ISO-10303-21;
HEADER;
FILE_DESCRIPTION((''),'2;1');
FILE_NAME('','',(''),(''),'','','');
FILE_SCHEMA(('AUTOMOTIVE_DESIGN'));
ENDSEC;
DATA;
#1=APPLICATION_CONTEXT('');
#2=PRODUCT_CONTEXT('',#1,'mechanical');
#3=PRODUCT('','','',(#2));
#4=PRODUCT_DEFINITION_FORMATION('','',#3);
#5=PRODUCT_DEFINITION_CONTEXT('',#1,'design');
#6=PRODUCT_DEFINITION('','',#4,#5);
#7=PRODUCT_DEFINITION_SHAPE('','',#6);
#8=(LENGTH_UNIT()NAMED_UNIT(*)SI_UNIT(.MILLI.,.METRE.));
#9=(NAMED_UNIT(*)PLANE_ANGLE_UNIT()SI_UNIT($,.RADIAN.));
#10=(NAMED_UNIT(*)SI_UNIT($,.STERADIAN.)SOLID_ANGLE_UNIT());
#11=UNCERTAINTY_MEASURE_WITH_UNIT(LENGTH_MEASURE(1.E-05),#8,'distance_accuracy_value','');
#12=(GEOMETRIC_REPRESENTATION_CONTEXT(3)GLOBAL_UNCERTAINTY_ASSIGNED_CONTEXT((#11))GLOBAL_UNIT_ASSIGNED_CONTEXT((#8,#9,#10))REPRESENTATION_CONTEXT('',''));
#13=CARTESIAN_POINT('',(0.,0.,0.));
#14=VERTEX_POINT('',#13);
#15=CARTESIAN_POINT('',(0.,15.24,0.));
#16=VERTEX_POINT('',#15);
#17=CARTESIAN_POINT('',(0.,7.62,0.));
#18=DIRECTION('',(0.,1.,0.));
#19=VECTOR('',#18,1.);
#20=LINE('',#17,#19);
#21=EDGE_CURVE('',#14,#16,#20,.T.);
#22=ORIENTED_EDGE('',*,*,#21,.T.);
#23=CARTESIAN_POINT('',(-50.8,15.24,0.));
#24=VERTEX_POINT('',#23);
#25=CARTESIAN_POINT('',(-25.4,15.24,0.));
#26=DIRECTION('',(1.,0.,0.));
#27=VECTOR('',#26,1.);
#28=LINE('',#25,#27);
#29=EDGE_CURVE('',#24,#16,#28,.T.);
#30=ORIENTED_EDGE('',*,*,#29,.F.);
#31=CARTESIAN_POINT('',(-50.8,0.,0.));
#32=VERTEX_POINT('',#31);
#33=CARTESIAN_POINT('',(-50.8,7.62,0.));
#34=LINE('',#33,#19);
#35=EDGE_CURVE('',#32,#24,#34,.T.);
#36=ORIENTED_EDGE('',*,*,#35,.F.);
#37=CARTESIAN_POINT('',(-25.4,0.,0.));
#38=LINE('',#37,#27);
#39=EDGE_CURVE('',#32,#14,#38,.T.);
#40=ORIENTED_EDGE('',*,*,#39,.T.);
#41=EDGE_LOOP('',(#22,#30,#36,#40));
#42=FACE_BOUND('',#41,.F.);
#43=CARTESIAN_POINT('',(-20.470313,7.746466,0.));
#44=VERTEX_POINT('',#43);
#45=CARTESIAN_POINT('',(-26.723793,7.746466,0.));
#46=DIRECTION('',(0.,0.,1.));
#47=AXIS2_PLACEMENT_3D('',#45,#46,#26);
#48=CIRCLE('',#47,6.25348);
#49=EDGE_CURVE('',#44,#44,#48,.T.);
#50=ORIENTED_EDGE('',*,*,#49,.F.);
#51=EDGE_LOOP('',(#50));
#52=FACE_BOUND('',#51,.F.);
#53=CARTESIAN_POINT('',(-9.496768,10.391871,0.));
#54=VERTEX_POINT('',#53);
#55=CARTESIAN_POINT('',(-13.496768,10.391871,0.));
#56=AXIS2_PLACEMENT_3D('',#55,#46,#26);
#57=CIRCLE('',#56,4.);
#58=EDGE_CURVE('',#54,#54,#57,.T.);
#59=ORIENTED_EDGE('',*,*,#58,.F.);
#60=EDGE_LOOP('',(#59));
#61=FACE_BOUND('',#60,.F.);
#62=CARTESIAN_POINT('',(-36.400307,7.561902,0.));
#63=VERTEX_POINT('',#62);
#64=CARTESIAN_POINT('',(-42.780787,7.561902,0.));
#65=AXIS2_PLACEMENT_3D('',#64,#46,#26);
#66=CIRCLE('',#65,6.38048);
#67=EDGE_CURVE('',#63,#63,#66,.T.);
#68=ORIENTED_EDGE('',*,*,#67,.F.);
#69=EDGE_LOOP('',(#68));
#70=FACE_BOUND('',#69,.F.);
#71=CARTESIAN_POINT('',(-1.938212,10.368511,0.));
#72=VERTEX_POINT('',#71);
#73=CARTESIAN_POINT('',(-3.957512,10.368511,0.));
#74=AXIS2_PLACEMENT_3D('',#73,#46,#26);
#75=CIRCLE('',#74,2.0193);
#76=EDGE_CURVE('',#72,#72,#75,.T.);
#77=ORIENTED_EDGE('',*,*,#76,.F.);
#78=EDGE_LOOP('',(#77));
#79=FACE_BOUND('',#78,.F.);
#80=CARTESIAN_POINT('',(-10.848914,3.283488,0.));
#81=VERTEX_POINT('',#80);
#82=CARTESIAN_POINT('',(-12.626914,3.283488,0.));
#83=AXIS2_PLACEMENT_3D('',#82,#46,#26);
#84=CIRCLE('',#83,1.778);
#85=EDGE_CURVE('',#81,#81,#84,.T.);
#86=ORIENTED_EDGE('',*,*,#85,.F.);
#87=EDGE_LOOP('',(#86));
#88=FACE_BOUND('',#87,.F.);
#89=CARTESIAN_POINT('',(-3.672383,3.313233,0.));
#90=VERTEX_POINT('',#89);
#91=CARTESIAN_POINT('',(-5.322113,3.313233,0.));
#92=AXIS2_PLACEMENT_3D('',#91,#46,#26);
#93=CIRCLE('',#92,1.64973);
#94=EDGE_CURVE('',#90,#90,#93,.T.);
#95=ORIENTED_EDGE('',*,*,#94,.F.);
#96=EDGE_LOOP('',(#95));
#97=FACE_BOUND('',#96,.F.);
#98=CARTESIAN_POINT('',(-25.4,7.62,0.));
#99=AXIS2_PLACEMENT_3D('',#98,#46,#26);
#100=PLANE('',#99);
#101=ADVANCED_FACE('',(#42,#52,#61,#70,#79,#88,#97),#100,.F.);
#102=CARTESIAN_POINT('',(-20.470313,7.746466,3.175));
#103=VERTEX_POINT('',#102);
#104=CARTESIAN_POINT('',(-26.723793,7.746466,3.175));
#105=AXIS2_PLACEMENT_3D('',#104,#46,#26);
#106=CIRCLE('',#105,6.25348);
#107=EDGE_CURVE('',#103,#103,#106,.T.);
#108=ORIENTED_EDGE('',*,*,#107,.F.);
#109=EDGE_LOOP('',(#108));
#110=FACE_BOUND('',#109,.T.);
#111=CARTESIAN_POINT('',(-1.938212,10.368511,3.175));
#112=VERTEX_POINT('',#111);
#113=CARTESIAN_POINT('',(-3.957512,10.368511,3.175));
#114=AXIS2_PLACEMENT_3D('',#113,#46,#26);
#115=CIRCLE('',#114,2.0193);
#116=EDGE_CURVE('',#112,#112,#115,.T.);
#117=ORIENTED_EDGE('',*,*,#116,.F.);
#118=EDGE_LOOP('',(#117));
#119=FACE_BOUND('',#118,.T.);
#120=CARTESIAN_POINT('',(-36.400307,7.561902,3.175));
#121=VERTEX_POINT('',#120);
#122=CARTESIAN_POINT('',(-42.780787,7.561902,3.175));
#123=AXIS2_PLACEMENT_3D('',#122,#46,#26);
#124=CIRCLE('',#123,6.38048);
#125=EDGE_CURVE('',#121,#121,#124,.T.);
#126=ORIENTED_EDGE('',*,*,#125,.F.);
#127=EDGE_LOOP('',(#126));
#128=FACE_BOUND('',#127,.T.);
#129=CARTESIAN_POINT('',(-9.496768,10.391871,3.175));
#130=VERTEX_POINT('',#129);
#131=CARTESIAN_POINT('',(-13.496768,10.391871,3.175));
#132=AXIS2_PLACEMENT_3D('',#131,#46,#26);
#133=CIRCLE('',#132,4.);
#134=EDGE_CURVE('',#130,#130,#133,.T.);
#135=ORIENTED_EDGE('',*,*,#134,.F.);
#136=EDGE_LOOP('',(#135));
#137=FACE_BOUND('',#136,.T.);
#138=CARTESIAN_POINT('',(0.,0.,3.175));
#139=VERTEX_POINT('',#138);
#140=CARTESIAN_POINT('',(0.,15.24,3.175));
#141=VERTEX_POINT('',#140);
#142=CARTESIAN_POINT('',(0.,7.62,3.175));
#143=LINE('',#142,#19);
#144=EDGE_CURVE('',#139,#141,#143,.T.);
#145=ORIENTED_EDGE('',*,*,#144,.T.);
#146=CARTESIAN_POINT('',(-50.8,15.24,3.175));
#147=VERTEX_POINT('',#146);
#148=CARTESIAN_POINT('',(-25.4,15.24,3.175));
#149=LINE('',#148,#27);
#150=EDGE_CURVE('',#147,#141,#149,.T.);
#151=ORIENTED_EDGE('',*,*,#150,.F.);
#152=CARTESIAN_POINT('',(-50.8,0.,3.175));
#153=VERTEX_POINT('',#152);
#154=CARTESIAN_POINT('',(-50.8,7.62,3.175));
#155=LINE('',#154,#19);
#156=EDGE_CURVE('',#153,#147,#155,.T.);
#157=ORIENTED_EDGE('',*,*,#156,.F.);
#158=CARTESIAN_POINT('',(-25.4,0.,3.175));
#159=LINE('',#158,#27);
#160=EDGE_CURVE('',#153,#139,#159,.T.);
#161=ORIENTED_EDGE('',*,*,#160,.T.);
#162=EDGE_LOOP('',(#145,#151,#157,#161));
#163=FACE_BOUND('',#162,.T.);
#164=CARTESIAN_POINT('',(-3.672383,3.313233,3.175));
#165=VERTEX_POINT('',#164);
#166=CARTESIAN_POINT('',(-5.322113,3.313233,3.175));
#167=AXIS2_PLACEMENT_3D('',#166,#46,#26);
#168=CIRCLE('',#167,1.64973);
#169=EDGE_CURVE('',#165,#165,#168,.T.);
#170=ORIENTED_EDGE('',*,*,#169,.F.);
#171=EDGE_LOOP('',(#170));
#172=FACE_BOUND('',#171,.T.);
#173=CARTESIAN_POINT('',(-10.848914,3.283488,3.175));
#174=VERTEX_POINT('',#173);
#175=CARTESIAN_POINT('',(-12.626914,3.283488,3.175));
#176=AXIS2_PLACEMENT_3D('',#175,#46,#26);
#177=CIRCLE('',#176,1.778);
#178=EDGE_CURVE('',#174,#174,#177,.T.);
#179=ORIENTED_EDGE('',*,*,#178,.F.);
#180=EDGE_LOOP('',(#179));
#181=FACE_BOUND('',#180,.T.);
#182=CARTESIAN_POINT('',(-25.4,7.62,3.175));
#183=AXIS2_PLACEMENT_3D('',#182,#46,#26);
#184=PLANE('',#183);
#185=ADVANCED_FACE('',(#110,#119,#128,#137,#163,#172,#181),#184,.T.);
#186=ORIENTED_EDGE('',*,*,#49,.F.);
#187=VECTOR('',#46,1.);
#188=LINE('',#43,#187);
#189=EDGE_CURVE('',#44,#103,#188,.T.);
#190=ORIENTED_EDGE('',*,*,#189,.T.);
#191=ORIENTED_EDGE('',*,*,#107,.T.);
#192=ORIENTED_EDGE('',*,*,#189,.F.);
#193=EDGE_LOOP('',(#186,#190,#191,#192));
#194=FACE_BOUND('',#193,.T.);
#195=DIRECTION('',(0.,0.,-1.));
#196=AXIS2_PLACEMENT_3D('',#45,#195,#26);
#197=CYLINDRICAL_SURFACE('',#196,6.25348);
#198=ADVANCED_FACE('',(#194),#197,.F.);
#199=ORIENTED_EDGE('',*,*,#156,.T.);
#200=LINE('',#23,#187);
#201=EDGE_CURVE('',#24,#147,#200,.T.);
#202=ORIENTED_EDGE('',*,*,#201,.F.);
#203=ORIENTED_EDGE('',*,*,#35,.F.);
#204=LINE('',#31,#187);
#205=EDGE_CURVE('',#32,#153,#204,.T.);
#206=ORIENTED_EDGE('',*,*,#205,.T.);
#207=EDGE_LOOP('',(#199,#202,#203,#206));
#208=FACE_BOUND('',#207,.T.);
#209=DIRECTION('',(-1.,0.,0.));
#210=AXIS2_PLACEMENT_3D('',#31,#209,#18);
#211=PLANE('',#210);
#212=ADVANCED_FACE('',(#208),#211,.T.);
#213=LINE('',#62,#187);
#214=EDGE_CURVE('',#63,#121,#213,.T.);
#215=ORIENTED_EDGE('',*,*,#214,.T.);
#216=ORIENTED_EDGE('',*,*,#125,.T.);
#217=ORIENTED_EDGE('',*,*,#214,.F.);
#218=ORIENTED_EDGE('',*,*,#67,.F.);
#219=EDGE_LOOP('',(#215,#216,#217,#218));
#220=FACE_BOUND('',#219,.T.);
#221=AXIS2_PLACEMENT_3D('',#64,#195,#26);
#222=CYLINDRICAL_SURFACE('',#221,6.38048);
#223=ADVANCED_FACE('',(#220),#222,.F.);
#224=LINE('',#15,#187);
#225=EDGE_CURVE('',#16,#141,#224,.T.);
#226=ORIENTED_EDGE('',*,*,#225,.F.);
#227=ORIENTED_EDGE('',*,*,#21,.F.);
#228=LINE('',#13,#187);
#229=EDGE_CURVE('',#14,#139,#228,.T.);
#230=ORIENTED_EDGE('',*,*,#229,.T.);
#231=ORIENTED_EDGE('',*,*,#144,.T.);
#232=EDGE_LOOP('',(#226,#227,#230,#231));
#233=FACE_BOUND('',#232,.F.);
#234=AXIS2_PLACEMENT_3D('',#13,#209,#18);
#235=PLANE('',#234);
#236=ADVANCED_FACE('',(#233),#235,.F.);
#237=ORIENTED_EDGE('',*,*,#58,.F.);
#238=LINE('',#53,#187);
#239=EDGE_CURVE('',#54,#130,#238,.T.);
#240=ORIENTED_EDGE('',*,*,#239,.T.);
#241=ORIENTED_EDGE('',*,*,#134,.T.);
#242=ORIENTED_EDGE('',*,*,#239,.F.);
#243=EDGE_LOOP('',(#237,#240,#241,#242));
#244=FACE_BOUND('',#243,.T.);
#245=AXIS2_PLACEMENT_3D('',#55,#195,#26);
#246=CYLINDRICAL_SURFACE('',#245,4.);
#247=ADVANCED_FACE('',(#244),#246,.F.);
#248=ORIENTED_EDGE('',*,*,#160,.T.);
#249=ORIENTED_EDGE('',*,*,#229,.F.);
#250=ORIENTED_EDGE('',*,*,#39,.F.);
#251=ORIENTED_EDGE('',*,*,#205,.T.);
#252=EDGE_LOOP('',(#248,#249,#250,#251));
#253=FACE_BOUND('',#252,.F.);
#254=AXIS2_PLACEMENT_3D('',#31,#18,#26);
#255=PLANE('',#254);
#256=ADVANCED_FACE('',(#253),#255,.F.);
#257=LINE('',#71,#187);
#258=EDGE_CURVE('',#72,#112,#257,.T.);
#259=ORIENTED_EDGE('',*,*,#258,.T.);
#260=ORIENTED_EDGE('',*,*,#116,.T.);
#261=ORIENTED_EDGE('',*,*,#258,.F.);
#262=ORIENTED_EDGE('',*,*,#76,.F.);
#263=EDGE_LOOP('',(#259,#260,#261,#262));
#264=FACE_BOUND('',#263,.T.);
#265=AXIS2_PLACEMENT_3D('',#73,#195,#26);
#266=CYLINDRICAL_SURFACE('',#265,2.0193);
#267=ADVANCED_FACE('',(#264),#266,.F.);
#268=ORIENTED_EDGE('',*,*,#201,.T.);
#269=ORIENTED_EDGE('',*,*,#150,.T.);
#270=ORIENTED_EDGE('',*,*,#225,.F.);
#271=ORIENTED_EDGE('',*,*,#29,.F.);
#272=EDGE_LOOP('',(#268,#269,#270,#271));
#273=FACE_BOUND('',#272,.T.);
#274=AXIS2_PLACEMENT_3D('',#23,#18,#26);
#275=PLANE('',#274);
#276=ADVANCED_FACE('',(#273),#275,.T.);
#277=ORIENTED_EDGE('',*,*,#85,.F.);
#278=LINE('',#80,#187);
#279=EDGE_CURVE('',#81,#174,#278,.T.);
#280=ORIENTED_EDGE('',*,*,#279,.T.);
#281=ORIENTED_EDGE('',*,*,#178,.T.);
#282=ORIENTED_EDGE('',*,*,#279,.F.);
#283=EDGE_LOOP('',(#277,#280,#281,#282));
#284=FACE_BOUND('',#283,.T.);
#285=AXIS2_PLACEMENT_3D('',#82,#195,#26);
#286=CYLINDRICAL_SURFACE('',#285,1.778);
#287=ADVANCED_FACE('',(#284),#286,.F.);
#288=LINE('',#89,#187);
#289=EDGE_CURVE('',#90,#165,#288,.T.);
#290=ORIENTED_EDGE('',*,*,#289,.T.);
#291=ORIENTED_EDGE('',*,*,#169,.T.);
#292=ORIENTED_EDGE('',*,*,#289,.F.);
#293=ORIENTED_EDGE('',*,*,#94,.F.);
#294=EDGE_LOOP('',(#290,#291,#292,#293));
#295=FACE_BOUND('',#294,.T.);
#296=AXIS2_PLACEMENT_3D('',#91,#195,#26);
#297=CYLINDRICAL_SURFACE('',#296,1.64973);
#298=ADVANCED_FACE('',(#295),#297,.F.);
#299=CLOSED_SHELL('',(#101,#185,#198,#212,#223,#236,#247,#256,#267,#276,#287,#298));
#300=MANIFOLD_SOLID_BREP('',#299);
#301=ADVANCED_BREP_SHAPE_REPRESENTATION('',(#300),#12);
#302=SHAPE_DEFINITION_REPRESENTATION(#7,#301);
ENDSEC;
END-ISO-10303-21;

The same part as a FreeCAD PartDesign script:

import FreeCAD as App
import Part
import Sketcher

V = App.Vector
Q = App.Units.Quantity


def add_polygon(sketch, points):
    """Adds a closed chain of lines whose ends are joined by coincident constraints."""
    first, n = sketch.GeometryCount, len(points)
    for a, b in zip(points, points[1:] + points[:1]):
        sketch.addGeometry(Part.LineSegment(App.Vector(*a, 0), App.Vector(*b, 0)), False)
    for i in range(n):
        sketch.addConstraint(Sketcher.Constraint("Coincident", first + i, 2, first + (i + 1) % n, 1))

doc = App.newDocument("Part")
body = doc.addObject("PartDesign::Body", "Body")

# Sketch on XY plane
sketch1 = doc.addObject("Sketcher::SketchObject", "Sketch")
body.addObject(sketch1)
sketch1.AttachmentSupport = (doc.XY_Plane, [""])
sketch1.MapMode = "FlatFace"
add_polygon(sketch1, [(-50.8, 15.2), (-50.8, 0), (0, 0), (0, 15.2)])  # lines 0-3
sketch1.addGeometry(Part.Circle(V(-42.8, 7.6, 0), V(0, 0, 1), 6.4), False)  # 4
sketch1.addGeometry(Part.Circle(V(-26.7, 7.7, 0), V(0, 0, 1), 6.3), False)  # 5
sketch1.addGeometry(Part.Circle(V(-12.6, 3.3, 0), V(0, 0, 1), 1.8), False)  # 6
sketch1.addGeometry(Part.Circle(V(-5.3, 3.3, 0), V(0, 0, 1), 1.6), False)  # 7
sketch1.addGeometry(Part.Circle(V(-13.5, 10.4, 0), V(0, 0, 1), 4), False)  # 8
sketch1.addGeometry(Part.Circle(V(-4, 10.4, 0), V(0, 0, 1), 2), False)  # 9
sketch1.addConstraint(Sketcher.Constraint("Vertical", 0))
sketch1.addConstraint(Sketcher.Constraint("Horizontal", 1))
sketch1.addConstraint(Sketcher.Constraint("Vertical", 2))
sketch1.addConstraint(Sketcher.Constraint("Horizontal", 3))
sketch1.addConstraint(Sketcher.Constraint("Coincident", 1, 2, -1, 1))
sketch1.addConstraint(Sketcher.Constraint("Diameter", 6, Q("0.14 in")))
sketch1.addConstraint(Sketcher.Constraint("DistanceX", 1, 1, 1, 2, Q("2 in")))
sketch1.addConstraint(Sketcher.Constraint("Diameter", 9, Q("0.159 in")))
sketch1.addConstraint(Sketcher.Constraint("DistanceY", 0, 2, 0, 1, Q("0.6 in")))
sketch1.addConstraint(Sketcher.Constraint("Diameter", 4, Q("0.5024 in")))
sketch1.addConstraint(Sketcher.Constraint("Diameter", 5, Q("0.4924 in")))
sketch1.addConstraint(Sketcher.Constraint("Diameter", 7, Q("0.1299 in")))
sketch1.addConstraint(Sketcher.Constraint("Diameter", 8, 8.0))
sketch1.addConstraint(Sketcher.Constraint("DistanceX", 6, 3, 7, 3, 7.304801))
sketch1.addConstraint(Sketcher.Constraint("DistanceX", 7, 3, 9, 3, 1.364601))
sketch1.addConstraint(Sketcher.Constraint("DistanceY", 4, 3, 3, 2, 7.678098))
sketch1.addConstraint(Sketcher.Constraint("DistanceY", -1, 1, 6, 3, 3.283488))
sketch1.addConstraint(Sketcher.Constraint("DistanceY", -1, 1, 8, 3, 10.391871))
sketch1.addConstraint(Sketcher.Constraint("DistanceX", 9, 3, -1, 1, 3.957512))
sketch1.addConstraint(Sketcher.Constraint("DistanceY", -1, 1, 9, 3, 10.368511))
sketch1.addConstraint(Sketcher.Constraint("DistanceX", 5, 3, 6, 3, 14.096879))
sketch1.addConstraint(Sketcher.Constraint("DistanceY", 7, 3, 4, 3, 4.248669))
sketch1.addConstraint(Sketcher.Constraint("DistanceX", 4, 3, 8, 3, 29.284019))
sketch1.addConstraint(Sketcher.Constraint("DistanceX", 0, 2, 8, 3, 37.303232))
sketch1.addConstraint(Sketcher.Constraint("DistanceY", -1, 1, 5, 3, 7.746466))
pad1 = doc.addObject("PartDesign::Pad", "Pad")
body.addObject(pad1)
pad1.Profile = sketch1
pad1.Length = Q("0.125 in")

doc.recompute()
